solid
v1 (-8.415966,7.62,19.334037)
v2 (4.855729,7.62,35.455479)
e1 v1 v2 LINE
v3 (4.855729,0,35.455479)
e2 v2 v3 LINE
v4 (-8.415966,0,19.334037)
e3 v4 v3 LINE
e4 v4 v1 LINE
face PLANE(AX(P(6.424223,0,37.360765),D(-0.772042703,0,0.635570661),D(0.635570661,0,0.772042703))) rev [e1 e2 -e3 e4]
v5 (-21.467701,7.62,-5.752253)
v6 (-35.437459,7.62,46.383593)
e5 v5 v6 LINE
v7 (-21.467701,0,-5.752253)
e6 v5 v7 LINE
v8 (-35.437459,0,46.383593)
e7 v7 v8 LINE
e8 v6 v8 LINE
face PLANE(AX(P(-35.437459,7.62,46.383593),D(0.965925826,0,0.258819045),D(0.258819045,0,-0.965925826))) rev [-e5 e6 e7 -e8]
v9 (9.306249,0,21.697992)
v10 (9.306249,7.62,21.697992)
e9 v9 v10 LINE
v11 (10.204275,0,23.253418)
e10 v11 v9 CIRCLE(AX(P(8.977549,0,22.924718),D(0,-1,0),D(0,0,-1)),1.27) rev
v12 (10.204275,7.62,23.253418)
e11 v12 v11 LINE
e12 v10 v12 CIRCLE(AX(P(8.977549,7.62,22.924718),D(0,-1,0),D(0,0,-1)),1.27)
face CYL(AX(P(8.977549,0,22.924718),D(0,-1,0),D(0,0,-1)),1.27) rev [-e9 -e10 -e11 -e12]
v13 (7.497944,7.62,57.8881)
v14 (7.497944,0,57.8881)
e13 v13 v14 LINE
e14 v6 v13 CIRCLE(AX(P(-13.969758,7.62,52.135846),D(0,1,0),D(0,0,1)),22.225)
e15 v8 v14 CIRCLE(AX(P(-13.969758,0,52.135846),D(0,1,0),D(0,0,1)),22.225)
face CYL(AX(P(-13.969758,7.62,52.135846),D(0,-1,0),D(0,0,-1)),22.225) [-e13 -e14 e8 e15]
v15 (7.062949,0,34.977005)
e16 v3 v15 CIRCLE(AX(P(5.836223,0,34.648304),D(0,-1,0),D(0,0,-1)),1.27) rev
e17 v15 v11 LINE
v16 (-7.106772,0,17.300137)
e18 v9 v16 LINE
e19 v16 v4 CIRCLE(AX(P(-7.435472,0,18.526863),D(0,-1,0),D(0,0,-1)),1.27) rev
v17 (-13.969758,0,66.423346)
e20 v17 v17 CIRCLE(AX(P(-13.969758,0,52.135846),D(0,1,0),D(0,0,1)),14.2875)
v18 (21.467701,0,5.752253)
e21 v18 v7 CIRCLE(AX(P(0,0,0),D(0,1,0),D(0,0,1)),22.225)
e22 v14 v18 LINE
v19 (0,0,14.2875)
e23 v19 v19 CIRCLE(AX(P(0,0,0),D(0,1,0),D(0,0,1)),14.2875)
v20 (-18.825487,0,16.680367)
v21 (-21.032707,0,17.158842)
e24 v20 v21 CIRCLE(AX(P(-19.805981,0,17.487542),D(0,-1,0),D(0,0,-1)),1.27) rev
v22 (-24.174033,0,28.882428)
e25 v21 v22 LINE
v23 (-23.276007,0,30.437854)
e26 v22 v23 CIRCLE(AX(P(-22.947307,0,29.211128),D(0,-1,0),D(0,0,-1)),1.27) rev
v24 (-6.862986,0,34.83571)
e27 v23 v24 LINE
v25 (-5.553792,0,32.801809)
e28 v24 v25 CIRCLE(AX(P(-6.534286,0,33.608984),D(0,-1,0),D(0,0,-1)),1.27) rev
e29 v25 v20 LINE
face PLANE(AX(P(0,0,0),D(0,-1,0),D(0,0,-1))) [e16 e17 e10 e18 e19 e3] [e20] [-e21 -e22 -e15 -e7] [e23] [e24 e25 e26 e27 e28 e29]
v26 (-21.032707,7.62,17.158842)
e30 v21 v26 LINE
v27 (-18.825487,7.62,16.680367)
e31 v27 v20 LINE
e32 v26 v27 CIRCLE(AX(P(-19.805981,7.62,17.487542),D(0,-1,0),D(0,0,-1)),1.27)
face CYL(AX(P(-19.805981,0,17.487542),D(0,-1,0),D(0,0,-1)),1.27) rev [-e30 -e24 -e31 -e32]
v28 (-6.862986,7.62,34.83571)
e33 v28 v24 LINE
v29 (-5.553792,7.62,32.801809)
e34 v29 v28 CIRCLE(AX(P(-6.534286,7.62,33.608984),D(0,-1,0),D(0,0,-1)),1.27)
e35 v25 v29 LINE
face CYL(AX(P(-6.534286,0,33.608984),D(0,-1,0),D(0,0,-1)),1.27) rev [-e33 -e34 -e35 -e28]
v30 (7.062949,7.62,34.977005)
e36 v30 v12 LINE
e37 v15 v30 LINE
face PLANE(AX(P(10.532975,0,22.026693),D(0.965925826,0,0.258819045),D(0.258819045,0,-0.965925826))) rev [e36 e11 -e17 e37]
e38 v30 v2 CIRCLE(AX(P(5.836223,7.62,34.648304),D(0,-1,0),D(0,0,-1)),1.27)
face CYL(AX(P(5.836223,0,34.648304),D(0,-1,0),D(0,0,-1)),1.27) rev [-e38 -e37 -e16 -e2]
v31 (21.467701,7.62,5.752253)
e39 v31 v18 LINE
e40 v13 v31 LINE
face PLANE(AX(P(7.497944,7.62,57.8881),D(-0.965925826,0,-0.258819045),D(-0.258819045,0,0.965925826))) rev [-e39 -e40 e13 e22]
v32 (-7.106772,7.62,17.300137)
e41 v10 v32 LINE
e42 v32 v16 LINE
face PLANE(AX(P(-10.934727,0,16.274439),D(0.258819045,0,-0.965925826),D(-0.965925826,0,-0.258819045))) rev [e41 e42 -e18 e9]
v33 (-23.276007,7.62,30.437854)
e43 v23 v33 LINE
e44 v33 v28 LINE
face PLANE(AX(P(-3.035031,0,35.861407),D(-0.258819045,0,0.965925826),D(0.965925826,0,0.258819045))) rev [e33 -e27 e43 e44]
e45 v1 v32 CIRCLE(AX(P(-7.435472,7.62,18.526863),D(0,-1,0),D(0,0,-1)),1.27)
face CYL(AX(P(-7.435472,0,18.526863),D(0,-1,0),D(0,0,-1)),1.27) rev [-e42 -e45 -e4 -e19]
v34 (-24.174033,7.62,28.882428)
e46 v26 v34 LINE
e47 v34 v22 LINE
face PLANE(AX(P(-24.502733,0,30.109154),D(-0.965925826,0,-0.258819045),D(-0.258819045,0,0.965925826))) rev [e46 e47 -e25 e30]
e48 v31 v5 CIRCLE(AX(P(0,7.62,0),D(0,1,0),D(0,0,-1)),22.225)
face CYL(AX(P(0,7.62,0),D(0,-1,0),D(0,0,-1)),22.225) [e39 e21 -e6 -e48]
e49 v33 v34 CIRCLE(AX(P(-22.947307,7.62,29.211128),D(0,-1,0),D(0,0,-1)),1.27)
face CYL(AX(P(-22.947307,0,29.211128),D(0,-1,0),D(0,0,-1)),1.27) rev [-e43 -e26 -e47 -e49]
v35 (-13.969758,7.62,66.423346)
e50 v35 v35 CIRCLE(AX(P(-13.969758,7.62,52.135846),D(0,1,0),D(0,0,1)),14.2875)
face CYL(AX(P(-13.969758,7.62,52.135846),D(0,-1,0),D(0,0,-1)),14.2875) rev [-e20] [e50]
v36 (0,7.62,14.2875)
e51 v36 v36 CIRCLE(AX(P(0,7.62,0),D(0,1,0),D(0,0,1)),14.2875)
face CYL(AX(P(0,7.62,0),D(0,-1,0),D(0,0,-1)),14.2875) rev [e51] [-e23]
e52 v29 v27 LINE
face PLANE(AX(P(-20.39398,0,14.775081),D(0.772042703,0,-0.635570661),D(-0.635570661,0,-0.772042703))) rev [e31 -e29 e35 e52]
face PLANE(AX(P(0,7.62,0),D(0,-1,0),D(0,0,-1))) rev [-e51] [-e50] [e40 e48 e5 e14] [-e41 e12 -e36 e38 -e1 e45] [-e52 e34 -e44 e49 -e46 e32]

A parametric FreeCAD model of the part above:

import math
import FreeCAD as App
import Part
import Sketcher

V = App.Vector
Q = App.Units.Quantity


def edges_at(feature, points):
    """Names of the edges that pass closest to the given points."""
    edges = feature.Shape.Edges
    near = lambda p: min(range(len(edges)), key=lambda i: edges[i].distToShape(Part.Vertex(*p))[0])
    return sorted({f"Edge{near(p) + 1}" for p in points})


def add_polygon(sketch, points):
    """Adds a closed chain of lines whose ends are joined by coincident constraints."""
    first, n = sketch.GeometryCount, len(points)
    for a, b in zip(points, points[1:] + points[:1]):
        sketch.addGeometry(Part.LineSegment(App.Vector(*a, 0), App.Vector(*b, 0)), False)
    for i in range(n):
        sketch.addConstraint(Sketcher.Constraint("Coincident", first + i, 2, first + (i + 1) % n, 1))

doc = App.newDocument("Part")
params = doc.addObject("Spreadsheet::Sheet", "Params")
for row, (alias, value) in enumerate([
    ("sketch1_diameter", "1.125 in"),
    ("sketch1_radius", "0.875 in"),
    ("sketch1_length", "2.125 in"),
    ("pad1_length", "0.3 in"),
    ("sketch2_length", "0.625 in"),
    ("sketch2_length2", "0.875 in"),
    ("fillet_radius", "0.05 in"),
], start=1):
    params.set(f"A{row}", alias)
    params.set(f"B{row}", "=" + value)
    params.setAlias(f"B{row}", alias)

body = doc.addObject("PartDesign::Body", "Body")

# Sketch on XZ plane
sketch1 = doc.addObject("Sketcher::SketchObject", "Sketch")
body.addObject(sketch1)
sketch1.AttachmentSupport = (doc.XZ_Plane, [""])
sketch1.MapMode = "FlatFace"
sketch1.addGeometry(Part.LineSegment(V(7.497944, 57.8881, 0), V(21.467701, 5.752253, 0)), False)
sketch1.addGeometry(Part.ArcOfCircle(Part.Circle(V(0, 0, 0), V(0, 0, 1), 22.225), math.radians(-90), math.radians(15)), False)
sketch1.addGeometry(Part.ArcOfCircle(Part.Circle(V(0, 0, 0), V(0, 0, 1), 22.225), math.radians(-165), math.radians(-90)), False)
sketch1.addGeometry(Part.LineSegment(V(-21.467701, -5.752253, 0), V(-35.437459, 46.383593, 0)), False)
sketch1.addGeometry(Part.ArcOfCircle(Part.Circle(V(-13.969758, 52.135846, 0), V(0, 0, 1), 22.225), math.radians(15), math.radians(195)), False)
sketch1.addGeometry(Part.Circle(V(-13.969758, 52.135846, 0), V(0, 0, 1), 14.2875), False)
sketch1.addGeometry(Part.Circle(V(0, 0, 0), V(0, 0, 1), 14.2875), False)
sketch1.addConstraint(Sketcher.Constraint("Tangent", 0, 2, 1, 2))
sketch1.addConstraint(Sketcher.Constraint("Tangent", 1, 1, 2, 2))
sketch1.addConstraint(Sketcher.Constraint("Tangent", 2, 1, 3, 1))
sketch1.addConstraint(Sketcher.Constraint("Tangent", 3, 2, 4, 2))
sketch1.addConstraint(Sketcher.Constraint("Tangent", 4, 1, 0, 1))
sketch1.addConstraint(Sketcher.Constraint("Coincident", 1, 3, -1, 1))
sketch1.addConstraint(Sketcher.Constraint("Coincident", 6, 3, -1, 1))
sketch1.addConstraint(Sketcher.Constraint("Coincident", 5, 3, 4, 3))
sketch1.addConstraint(Sketcher.Constraint("Equal", 1, 2))
sketch1.addConstraint(Sketcher.Constraint("Equal", 2, 4))
sketch1.addConstraint(Sketcher.Constraint("Equal", 5, 6))
sketch1.addConstraint(Sketcher.Constraint("PointOnObject", 1, 1, -2))
sketch1.addConstraint(Sketcher.Constraint("Diameter", 5, Q("1.125 in")))
sketch1.addConstraint(Sketcher.Constraint("Angle", 0, Q("-75 deg")))
sketch1.addConstraint(Sketcher.Constraint("Radius", 1, Q("0.875 in")))
sketch1.addConstraint(Sketcher.Constraint("Distance", 0, Q("2.125 in")))
sketch1.setExpression("Constraints[12]", "Params.sketch1_diameter")
sketch1.setExpression("Constraints[14]", "Params.sketch1_radius")
sketch1.setExpression("Constraints[15]", "Params.sketch1_length")
pad1 = doc.addObject("PartDesign::Pad", "Pad")
body.addObject(pad1)
pad1.Profile = sketch1
pad1.setExpression("Length", "Params.pad1_length")
pad1.Reversed = True

# Sketch on XZ plane
sketch2 = doc.addObject("Sketcher::SketchObject", "Sketch001")
body.addObject(sketch2)
sketch2.AttachmentSupport = (doc.XZ_Plane, [""])
sketch2.MapMode = "FlatFace"
sketch2.AttachmentOffset = App.Placement(V(0, 0, -0.3 * 25.4), App.Rotation())
add_polygon(sketch2, [(-3.035031, 35.861407), (-20.39398, 14.775081), (-24.502733, 30.109154)])  # lines 0-2
add_polygon(sketch2, [(10.532975, 22.026693), (-10.934727, 16.274439), (6.424223, 37.360765)])  # lines 3-5
sketch2.addConstraint(Sketcher.Constraint("Perpendicular", 1, 2))
sketch2.addConstraint(Sketcher.Constraint("Parallel", 2, 3))
sketch2.addConstraint(Sketcher.Constraint("Parallel", 0, 4))
sketch2.addConstraint(Sketcher.Constraint("Perpendicular", 3, 5))
sketch2.addConstraint(Sketcher.Constraint("Equal", 2, 3))
sketch2.addConstraint(Sketcher.Constraint("Angle", 1, Q("105 deg")))
sketch2.addConstraint(Sketcher.Constraint("Distance", 1, Q("0.625 in")))
sketch2.addConstraint(Sketcher.Constraint("Distance", 2, Q("0.875 in")))
sketch2.addConstraint(Sketcher.Constraint("DistanceY", 0, 2, 4, 2, Q("0.8892001 in")))
sketch2.addConstraint(Sketcher.Constraint("DistanceX", 0, 2, -1, 1, Q("20.39398 mm")))
sketch2.addConstraint(Sketcher.Constraint("DistanceY", -1, 1, 0, 2, Q("14.775081 mm")))
sketch2.addConstraint(Sketcher.Constraint("DistanceX", 3, 2, -1, 1, Q("10.934727 mm")))
sketch2.setExpression("Constraints[12]", "Params.sketch2_length")
sketch2.setExpression("Constraints[13]", "Params.sketch2_length2")
pocket1 = doc.addObject("PartDesign::Pocket", "Pocket")
body.addObject(pocket1)
pocket1.Profile = sketch2
pocket1.Type = "ThroughAll"
pocket1.Reversed = True
doc.recompute()

fillet = doc.addObject("PartDesign::Fillet", "Fillet")
body.addObject(fillet)
fillet.Base = (pocket1, edges_at(pocket1, [
    (-24.503, 3.81, 30.109),
    (-20.394, 3.81, 14.775),
    (-3.035, 3.81, 35.861),
    (6.424, 3.81, 37.361),
    (-10.935, 3.81, 16.274),
    (10.533, 3.81, 22.027),
]))
fillet.setExpression("Radius", "Params.fillet_radius")

doc.recompute()
